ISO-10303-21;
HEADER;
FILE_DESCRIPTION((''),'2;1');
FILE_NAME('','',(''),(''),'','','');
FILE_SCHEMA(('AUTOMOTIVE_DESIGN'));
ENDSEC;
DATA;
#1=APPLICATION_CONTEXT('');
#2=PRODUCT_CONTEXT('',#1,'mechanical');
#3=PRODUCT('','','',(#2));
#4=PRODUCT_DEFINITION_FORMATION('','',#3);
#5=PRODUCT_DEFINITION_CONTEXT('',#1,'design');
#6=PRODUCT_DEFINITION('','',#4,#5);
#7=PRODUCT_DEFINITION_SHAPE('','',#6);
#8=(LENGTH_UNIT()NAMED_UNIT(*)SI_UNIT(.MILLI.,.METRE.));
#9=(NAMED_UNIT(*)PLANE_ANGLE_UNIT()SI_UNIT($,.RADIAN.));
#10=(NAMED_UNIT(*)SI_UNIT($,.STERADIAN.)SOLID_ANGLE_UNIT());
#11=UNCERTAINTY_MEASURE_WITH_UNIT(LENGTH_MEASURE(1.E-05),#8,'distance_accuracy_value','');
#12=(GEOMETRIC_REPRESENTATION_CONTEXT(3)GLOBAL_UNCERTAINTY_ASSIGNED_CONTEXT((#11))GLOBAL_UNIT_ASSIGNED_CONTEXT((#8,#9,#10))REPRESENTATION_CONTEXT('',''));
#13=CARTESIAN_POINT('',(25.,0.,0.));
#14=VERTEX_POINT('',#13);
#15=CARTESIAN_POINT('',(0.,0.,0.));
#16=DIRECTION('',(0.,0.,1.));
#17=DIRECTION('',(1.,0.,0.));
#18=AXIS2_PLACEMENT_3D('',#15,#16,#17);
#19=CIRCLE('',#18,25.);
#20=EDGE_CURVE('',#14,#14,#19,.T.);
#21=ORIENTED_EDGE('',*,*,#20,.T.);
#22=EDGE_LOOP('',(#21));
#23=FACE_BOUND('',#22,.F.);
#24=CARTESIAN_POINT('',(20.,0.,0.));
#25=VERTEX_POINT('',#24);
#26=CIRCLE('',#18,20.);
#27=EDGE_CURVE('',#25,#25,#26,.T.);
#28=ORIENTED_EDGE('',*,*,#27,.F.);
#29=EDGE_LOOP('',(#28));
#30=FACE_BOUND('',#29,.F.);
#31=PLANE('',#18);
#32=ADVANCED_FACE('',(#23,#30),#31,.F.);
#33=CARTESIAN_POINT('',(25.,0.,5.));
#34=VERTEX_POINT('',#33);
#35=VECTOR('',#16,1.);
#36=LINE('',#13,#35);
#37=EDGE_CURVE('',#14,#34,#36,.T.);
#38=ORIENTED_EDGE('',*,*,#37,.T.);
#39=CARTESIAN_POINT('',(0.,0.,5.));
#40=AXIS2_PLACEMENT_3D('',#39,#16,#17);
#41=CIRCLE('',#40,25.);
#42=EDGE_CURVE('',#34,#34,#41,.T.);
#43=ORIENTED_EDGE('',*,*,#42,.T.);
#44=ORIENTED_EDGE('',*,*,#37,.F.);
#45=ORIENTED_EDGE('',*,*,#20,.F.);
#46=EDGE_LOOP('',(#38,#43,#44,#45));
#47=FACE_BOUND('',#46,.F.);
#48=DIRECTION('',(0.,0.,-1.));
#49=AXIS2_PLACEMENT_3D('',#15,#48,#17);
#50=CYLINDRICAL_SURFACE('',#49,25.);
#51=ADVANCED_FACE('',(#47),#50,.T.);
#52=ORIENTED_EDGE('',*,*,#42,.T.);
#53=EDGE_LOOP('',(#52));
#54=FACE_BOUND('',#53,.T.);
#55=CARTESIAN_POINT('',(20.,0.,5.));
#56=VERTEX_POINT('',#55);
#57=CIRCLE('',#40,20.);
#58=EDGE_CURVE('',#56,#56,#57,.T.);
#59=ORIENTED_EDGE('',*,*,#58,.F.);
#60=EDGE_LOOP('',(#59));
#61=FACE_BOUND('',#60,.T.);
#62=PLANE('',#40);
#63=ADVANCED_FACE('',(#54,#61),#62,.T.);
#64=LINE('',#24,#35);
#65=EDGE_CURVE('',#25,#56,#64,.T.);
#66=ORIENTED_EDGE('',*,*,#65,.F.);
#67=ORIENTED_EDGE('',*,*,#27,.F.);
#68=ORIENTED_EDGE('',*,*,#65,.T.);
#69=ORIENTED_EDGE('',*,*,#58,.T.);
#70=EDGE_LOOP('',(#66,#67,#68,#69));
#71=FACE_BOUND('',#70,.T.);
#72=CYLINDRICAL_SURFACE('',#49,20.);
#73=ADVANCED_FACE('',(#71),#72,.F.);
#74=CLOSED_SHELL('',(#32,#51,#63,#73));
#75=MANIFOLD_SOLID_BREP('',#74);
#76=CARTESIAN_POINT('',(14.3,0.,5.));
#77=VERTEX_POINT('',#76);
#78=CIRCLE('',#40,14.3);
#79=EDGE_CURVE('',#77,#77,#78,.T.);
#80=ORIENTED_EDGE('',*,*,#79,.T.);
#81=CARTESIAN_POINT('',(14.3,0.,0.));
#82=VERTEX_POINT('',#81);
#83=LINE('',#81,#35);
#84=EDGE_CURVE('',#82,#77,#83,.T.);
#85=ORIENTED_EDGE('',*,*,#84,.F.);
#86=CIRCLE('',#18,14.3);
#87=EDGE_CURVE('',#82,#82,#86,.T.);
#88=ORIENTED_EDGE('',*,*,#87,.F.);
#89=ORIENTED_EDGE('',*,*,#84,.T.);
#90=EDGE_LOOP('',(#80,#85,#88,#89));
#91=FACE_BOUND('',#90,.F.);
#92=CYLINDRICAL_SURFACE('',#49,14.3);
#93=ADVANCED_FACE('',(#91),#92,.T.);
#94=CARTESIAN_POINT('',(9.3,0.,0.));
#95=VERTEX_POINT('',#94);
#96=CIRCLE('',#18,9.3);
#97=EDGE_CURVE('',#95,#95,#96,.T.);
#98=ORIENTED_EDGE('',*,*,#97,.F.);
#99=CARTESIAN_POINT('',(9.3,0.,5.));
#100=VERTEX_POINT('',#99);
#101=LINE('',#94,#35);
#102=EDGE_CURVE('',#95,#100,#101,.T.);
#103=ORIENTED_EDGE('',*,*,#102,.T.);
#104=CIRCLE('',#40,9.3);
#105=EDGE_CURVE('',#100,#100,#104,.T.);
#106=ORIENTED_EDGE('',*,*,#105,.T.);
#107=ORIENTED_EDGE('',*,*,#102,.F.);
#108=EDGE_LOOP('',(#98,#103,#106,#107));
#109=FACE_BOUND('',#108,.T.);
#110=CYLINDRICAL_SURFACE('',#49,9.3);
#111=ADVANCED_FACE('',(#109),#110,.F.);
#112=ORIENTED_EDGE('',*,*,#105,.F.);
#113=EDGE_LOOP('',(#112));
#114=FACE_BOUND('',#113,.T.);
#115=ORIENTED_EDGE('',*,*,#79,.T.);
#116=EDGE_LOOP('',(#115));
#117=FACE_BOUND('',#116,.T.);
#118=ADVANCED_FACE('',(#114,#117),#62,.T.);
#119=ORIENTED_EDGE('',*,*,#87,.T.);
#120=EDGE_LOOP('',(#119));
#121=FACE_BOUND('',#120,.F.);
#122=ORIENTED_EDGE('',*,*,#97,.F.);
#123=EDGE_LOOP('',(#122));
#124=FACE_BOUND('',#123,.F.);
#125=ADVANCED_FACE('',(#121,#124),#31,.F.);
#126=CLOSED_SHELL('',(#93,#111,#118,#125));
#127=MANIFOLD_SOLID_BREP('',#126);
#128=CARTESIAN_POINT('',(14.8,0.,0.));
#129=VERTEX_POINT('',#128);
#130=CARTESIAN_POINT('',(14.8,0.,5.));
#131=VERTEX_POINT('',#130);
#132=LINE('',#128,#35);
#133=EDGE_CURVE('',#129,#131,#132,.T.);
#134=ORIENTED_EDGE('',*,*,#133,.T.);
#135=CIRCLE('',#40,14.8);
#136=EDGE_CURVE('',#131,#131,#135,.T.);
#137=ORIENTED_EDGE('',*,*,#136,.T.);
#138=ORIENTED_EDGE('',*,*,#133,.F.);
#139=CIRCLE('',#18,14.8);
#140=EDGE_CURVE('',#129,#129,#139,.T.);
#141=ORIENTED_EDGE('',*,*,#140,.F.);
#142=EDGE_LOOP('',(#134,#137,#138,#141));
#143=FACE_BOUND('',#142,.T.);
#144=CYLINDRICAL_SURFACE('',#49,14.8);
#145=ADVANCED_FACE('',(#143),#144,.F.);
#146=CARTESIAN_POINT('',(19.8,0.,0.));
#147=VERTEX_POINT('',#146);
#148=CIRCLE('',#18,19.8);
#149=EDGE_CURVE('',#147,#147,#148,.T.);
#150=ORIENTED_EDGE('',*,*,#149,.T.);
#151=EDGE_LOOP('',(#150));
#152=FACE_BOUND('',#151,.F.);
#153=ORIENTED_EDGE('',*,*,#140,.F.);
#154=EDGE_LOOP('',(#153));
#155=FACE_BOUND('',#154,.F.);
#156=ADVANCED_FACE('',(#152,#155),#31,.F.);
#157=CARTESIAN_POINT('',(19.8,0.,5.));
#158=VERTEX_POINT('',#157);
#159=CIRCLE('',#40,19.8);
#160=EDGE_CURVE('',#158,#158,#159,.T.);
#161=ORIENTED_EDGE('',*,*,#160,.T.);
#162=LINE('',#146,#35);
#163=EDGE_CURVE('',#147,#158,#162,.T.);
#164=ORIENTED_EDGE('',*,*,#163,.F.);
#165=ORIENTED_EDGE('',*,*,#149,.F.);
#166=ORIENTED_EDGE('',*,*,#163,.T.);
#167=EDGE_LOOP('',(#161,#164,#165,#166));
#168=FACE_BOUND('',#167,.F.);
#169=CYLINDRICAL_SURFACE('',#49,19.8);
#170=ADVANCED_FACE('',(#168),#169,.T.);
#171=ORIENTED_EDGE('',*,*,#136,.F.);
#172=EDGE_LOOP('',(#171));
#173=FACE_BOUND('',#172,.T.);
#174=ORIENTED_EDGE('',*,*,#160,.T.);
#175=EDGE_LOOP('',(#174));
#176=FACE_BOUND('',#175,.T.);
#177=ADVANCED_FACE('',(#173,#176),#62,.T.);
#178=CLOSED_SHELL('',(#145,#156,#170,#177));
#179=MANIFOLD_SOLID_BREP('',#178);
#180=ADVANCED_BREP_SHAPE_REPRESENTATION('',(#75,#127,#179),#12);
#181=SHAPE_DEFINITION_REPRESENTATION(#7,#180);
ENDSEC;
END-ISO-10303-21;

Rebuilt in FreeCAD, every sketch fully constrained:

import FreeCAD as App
import Part
import Sketcher

V = App.Vector
Q = App.Units.Quantity

doc = App.newDocument("Part")
body = doc.addObject("PartDesign::Body", "Body")
body.AllowCompound = True

sketch1 = body.newObject("Sketcher::SketchObject", "Sketch")
sketch1.AttachmentSupport = (doc.getObject("XY_Plane"), [""])
sketch1.MapMode = "FlatFace"
sketch1.addGeometry(Part.Circle(V(0, 0, 0), V(0, 0, 1), 25), False)
sketch1.addGeometry(Part.Circle(V(0, 0, 0), V(0, 0, 1), 20), False)
sketch1.addGeometry(Part.Circle(V(0, 0, 0), V(0, 0, 1), 20), False)
sketch1.addGeometry(Part.Circle(V(0, 0, 0), V(0, 0, 1), 15), False)
sketch1.addGeometry(Part.Circle(V(0, 0, 0), V(0, 0, 1), 14), False)
sketch1.addGeometry(Part.Circle(V(0, 0, 0), V(0, 0, 1), 9), False)
sketch1.addConstraint(Sketcher.Constraint("Coincident", 0, 3, -1, 1))
sketch1.addConstraint(Sketcher.Constraint("Coincident", 1, 3, -1, 1))
sketch1.addConstraint(Sketcher.Constraint("Coincident", 2, 3, -1, 1))
sketch1.addConstraint(Sketcher.Constraint("Coincident", 3, 3, -1, 1))
sketch1.addConstraint(Sketcher.Constraint("Coincident", 4, 3, -1, 1))
sketch1.addConstraint(Sketcher.Constraint("Coincident", 5, 3, -1, 1))
sketch1.addConstraint(Sketcher.Constraint("Diameter", 0, Q("50 mm")))
sketch1.addConstraint(Sketcher.Constraint("Diameter", 1, Q("40 mm")))
sketch1.addConstraint(Sketcher.Constraint("Diameter", 2, Q("39.6 mm")))
sketch1.addConstraint(Sketcher.Constraint("Diameter", 3, Q("29.6 mm")))
sketch1.addConstraint(Sketcher.Constraint("Diameter", 4, Q("28.6 mm")))
sketch1.addConstraint(Sketcher.Constraint("Diameter", 5, Q("18.6 mm")))
pad1 = body.newObject("PartDesign::Pad", "Pad")
pad1.Profile = sketch1
pad1.Length = 5

doc.recompute()
